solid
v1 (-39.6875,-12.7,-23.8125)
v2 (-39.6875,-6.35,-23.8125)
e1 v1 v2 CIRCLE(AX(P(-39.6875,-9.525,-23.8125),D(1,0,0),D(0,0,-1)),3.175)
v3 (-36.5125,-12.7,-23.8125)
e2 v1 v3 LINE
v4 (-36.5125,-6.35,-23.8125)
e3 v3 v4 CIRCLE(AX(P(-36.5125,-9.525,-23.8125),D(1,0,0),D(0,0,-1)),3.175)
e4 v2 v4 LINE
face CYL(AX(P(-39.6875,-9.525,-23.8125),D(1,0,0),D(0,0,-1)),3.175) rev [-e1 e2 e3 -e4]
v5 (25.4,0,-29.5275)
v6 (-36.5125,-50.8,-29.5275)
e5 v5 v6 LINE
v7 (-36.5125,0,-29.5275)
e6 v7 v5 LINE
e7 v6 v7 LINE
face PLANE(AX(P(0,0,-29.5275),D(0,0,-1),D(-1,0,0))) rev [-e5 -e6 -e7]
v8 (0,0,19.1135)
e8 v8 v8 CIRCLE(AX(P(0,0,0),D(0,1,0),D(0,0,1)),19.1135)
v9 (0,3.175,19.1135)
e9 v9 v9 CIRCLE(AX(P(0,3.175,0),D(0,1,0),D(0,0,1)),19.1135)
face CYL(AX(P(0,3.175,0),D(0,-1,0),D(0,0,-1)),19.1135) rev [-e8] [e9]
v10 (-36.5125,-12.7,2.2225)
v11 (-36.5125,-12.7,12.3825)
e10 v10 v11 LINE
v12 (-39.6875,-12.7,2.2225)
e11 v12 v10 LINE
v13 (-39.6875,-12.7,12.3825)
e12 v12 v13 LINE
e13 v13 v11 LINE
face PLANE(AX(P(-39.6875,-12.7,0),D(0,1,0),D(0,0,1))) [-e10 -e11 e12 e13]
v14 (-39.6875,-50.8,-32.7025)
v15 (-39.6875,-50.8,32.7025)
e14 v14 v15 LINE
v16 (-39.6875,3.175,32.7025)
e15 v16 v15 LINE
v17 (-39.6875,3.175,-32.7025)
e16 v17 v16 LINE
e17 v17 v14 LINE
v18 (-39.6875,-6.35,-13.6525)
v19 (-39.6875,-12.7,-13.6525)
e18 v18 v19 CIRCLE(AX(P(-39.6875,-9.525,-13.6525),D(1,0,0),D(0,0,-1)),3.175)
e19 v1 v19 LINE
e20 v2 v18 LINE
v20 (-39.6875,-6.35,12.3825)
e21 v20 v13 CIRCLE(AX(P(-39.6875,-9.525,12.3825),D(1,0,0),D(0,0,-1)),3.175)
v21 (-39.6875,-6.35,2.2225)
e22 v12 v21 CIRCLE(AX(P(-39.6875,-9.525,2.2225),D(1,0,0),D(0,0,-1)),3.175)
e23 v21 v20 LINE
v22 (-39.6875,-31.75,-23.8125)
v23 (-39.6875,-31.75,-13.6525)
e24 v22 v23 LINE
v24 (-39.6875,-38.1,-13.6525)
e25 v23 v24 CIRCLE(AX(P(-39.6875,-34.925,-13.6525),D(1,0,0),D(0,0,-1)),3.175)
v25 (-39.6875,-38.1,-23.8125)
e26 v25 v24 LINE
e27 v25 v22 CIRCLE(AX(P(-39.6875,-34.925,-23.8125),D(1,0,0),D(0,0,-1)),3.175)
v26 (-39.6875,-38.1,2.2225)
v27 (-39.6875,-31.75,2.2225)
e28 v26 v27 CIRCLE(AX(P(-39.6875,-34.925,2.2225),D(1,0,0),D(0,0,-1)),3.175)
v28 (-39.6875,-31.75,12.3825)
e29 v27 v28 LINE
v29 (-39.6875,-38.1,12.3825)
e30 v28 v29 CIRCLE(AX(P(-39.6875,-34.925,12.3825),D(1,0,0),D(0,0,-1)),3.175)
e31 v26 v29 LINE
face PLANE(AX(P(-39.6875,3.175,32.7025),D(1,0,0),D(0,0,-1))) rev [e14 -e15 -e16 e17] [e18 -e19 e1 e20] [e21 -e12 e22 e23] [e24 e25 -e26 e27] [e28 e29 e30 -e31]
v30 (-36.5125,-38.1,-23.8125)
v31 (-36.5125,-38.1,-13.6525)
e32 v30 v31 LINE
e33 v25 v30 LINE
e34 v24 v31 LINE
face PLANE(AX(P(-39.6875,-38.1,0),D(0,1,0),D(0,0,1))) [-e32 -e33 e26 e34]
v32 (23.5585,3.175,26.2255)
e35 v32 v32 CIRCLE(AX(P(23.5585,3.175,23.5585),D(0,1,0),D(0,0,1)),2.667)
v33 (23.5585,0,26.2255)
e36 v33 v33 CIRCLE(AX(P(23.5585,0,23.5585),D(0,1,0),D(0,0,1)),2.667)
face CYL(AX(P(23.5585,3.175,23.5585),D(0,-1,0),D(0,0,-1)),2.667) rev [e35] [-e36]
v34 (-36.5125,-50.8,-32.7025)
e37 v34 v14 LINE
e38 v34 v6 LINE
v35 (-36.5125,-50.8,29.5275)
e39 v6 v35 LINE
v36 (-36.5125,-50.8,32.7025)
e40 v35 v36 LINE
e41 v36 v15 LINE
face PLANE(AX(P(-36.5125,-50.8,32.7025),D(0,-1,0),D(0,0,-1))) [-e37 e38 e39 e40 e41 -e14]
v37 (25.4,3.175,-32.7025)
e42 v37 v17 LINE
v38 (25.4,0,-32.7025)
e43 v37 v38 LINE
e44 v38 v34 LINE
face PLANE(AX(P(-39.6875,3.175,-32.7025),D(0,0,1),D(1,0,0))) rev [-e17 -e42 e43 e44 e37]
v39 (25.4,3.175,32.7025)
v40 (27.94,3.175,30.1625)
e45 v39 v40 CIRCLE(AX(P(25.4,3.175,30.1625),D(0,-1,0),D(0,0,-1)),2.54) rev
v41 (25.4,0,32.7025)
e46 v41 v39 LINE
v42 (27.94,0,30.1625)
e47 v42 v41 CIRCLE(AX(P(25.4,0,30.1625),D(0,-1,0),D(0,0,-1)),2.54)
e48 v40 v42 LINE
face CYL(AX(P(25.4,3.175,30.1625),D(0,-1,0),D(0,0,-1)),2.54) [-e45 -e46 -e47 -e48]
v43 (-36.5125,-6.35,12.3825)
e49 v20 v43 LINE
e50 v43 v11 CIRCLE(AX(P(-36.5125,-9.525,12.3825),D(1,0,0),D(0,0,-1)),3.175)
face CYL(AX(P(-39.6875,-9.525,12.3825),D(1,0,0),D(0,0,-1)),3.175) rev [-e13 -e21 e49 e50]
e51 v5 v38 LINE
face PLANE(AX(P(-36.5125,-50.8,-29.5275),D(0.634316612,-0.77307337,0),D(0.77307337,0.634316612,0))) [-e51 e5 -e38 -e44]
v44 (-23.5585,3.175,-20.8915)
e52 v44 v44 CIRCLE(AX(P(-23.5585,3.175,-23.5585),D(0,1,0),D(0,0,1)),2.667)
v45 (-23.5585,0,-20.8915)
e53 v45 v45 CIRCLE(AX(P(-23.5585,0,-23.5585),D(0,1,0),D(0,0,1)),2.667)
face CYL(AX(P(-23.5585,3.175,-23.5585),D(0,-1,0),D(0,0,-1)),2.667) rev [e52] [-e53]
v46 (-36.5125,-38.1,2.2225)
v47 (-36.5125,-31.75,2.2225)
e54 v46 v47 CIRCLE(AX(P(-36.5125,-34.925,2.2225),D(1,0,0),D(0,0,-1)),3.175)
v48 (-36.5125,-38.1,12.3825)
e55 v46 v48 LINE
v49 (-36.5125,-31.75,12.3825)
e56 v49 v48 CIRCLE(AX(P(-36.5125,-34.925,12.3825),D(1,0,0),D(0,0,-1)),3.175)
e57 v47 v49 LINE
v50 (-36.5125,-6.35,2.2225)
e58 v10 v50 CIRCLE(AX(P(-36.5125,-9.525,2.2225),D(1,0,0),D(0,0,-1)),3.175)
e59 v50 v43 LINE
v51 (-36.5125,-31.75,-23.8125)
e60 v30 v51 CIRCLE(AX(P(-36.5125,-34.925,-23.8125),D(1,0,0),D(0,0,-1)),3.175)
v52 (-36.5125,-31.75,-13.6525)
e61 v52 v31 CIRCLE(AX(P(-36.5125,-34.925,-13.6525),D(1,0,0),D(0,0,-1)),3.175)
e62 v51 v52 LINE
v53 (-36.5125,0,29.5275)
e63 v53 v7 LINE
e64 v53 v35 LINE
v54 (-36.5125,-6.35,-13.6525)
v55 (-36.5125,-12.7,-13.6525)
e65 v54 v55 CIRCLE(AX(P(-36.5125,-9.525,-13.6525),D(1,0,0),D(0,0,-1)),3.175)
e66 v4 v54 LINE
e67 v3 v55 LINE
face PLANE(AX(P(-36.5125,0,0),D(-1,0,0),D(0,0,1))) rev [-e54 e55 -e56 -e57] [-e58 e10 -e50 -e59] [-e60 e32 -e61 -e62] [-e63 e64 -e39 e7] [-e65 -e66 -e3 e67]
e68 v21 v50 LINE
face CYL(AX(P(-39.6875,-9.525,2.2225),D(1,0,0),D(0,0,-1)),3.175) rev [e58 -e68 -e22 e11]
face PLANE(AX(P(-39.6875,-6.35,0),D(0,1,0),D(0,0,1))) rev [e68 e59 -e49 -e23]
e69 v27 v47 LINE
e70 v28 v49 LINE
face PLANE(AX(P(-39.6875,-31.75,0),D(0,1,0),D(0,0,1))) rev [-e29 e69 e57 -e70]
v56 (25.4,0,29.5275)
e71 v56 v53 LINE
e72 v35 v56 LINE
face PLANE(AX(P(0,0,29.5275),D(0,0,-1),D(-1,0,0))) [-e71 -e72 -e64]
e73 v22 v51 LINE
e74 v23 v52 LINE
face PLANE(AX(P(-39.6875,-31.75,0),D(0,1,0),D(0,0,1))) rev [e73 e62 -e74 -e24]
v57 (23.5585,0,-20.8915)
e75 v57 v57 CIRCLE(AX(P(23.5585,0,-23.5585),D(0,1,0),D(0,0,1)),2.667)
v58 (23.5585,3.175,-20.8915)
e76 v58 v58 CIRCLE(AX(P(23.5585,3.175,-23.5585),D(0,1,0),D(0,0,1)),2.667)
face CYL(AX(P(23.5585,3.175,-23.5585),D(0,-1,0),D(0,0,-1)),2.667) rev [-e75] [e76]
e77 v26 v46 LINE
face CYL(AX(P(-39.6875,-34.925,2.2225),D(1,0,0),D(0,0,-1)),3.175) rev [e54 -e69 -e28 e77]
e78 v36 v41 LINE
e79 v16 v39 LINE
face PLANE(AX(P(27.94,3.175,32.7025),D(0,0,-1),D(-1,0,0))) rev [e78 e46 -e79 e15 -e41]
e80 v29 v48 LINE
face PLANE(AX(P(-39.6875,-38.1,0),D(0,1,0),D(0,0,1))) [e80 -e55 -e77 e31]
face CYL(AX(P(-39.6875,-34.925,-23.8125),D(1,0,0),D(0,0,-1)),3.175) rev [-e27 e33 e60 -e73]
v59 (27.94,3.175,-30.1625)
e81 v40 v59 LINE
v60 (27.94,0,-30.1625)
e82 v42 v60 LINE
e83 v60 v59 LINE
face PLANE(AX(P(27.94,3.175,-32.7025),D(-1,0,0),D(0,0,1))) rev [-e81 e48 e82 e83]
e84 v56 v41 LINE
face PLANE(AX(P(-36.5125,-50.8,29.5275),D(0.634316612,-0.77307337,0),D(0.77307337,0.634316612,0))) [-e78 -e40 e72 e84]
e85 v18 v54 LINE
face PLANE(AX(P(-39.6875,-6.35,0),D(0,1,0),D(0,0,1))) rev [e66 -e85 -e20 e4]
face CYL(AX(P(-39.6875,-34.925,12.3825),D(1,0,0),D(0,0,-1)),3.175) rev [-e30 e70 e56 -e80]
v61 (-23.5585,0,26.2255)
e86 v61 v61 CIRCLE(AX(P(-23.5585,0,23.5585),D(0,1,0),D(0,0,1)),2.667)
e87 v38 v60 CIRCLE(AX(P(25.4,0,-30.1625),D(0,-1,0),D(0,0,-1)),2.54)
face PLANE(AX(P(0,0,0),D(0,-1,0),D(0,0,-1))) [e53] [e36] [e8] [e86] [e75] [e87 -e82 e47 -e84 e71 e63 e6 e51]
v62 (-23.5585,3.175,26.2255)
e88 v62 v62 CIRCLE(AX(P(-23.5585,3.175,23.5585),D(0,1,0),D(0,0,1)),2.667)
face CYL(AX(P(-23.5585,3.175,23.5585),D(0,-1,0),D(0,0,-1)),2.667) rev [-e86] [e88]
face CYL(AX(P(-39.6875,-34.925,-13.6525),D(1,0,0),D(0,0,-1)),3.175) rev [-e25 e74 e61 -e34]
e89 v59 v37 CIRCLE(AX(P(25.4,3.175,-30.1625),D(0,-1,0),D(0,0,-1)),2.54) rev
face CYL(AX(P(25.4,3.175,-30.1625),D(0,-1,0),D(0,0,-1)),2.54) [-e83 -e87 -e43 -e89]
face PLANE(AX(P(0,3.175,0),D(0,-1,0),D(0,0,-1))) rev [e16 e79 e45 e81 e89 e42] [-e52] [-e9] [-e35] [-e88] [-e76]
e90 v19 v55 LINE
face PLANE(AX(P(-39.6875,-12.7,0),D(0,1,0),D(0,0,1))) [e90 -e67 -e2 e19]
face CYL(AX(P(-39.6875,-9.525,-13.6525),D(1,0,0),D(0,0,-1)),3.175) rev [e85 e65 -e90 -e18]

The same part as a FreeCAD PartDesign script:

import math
import FreeCAD as App
import Part
import Sketcher

V = App.Vector
Q = App.Units.Quantity


def edges_at(feature, points):
    """Names of the edges that pass closest to the given points."""
    edges = feature.Shape.Edges
    near = lambda p: min(range(len(edges)), key=lambda i: edges[i].distToShape(Part.Vertex(*p))[0])
    return sorted({f"Edge{near(p) + 1}" for p in points})

doc = App.newDocument("Part")
body = doc.addObject("PartDesign::Body", "Body")

# Sketch on XZ plane
sketch1 = doc.addObject("Sketcher::SketchObject", "Sketch")
body.addObject(sketch1)
sketch1.AttachmentSupport = (doc.XZ_Plane, [""])
sketch1.MapMode = "FlatFace"
sketch1.addGeometry(Part.LineSegment(V(-39.7, -32.7, 0), V(-39.7, 32.7, 0)), False)
sketch1.addGeometry(Part.LineSegment(V(-39.7, 32.7, 0), V(27.9, 32.7, 0)), False)
sketch1.addGeometry(Part.LineSegment(V(27.9, 32.7, 0), V(27.9, -32.7, 0)), False)
sketch1.addGeometry(Part.LineSegment(V(27.9, -32.7, 0), V(-39.7, -32.7, 0)), False)
sketch1.addGeometry(Part.Circle(V(-23.6, 23.6, 0), V(0, 0, 1), 2.7), False)
sketch1.addGeometry(Part.Circle(V(0, 0, 0), V(0, 0, 1), 19.1), False)
sketch1.addGeometry(Part.Circle(V(23.6, 23.6, 0), V(0, 0, 1), 2.7), False)
sketch1.addGeometry(Part.Circle(V(-23.6, -23.6, 0), V(0, 0, 1), 2.7), False)
sketch1.addGeometry(Part.Circle(V(23.6, -23.6, 0), V(0, 0, 1), 2.7), False)
sketch1.addConstraint(Sketcher.Constraint("Coincident", 0, 2, 1, 1))
sketch1.addConstraint(Sketcher.Constraint("Coincident", 1, 2, 2, 1))
sketch1.addConstraint(Sketcher.Constraint("Coincident", 2, 2, 3, 1))
sketch1.addConstraint(Sketcher.Constraint("Coincident", 3, 2, 0, 1))
sketch1.addConstraint(Sketcher.Constraint("Vertical", 0))
sketch1.addConstraint(Sketcher.Constraint("Horizontal", 1))
sketch1.addConstraint(Sketcher.Constraint("Vertical", 2))
sketch1.addConstraint(Sketcher.Constraint("Horizontal", 3))
sketch1.addConstraint(Sketcher.Constraint("Coincident", 5, 3, -1, 1))
sketch1.addConstraint(Sketcher.Constraint("Equal", 4, 6))
sketch1.addConstraint(Sketcher.Constraint("Equal", 6, 7))
sketch1.addConstraint(Sketcher.Constraint("Equal", 7, 8))
sketch1.addConstraint(Sketcher.Constraint("Symmetric", 6, 3, 7, 3, -1, 1))
sketch1.addConstraint(Sketcher.Constraint("Symmetric", 4, 3, 8, 3, -1, 1))
sketch1.addConstraint(Sketcher.Constraint("Symmetric", 4, 3, 6, 3, -2))
sketch1.addConstraint(Sketcher.Constraint("Diameter", 4, Q("0.21 in")))
sketch1.addConstraint(Sketcher.Constraint("Diameter", 5, Q("1.505 in")))
sketch1.addConstraint(Sketcher.Constraint("DistanceX", -1, 1, 1, 2, Q("1.1 in")))
sketch1.addConstraint(Sketcher.Constraint("DistanceY", 0, 1, 0, 2, Q("2.575 in")))
sketch1.addConstraint(Sketcher.Constraint("DistanceY", 4, 3, 0, 2, Q("0.36 in")))
sketch1.addConstraint(Sketcher.Constraint("DistanceX", 0, 2, 6, 3, Q("2.49 in")))
sketch1.addConstraint(Sketcher.Constraint("DistanceY", 2, 2, 8, 3, Q("0.36 in")))
sketch1.addConstraint(Sketcher.Constraint("DistanceX", 1, 1, 1, 2, Q("2.6625 in")))
pad1 = doc.addObject("PartDesign::Pad", "Pad")
body.addObject(pad1)
pad1.Profile = sketch1
pad1.Length = Q("0.125 in")
pad1.Reversed = True
doc.recompute()

fillet = doc.addObject("PartDesign::Fillet", "Fillet")
body.addObject(fillet)
fillet.Base = (pad1, edges_at(pad1, [(27.94, 1.587, -32.703), (27.94, 1.587, 32.703)]))
fillet.Radius = Q("0.1 in")

# Sketch on YZ plane
sketch2 = doc.addObject("Sketcher::SketchObject", "Sketch001")
body.addObject(sketch2)
sketch2.AttachmentSupport = (doc.YZ_Plane, [""])
sketch2.MapMode = "FlatFace"
sketch2.AttachmentOffset = App.Placement(V(0, 0, -1.5625 * 25.4), App.Rotation())
sketch2.addGeometry(Part.LineSegment(V(0, -33, 0), V(-51, -33, 0)), False)
sketch2.addGeometry(Part.LineSegment(V(-51, -33, 0), V(-51, 33, 0)), False)
sketch2.addGeometry(Part.LineSegment(V(-51, 33, 0), V(0, 33, 0)), False)
sketch2.addGeometry(Part.LineSegment(V(0, 33, 0), V(0, -33, 0)), False)
sketch2.addConstraint(Sketcher.Constraint("Coincident", 0, 2, 1, 1))
sketch2.addConstraint(Sketcher.Constraint("Coincident", 1, 2, 2, 1))
sketch2.addConstraint(Sketcher.Constraint("Coincident", 2, 2, 3, 1))
sketch2.addConstraint(Sketcher.Constraint("Coincident", 3, 2, 0, 1))
sketch2.addConstraint(Sketcher.Constraint("Horizontal", 0))
sketch2.addConstraint(Sketcher.Constraint("Vertical", 1))
sketch2.addConstraint(Sketcher.Constraint("Horizontal", 2))
sketch2.addConstraint(Sketcher.Constraint("Vertical", 3))
sketch2.addConstraint(Sketcher.Constraint("Symmetric", 2, 2, 3, 2, -1, 1))
sketch2.addConstraint(Sketcher.Constraint("DistanceX", 0, 2, 0, 1, Q("2 in")))
sketch2.addConstraint(Sketcher.Constraint("DistanceY", 1, 1, 1, 2, Q("2.575 in")))
pad2 = doc.addObject("PartDesign::Pad", "Pad001")
body.addObject(pad2)
pad2.Profile = sketch2
pad2.Length = Q("0.125 in")

# Sketch on XY plane
sketch3 = doc.addObject("Sketcher::SketchObject", "Sketch002")
body.addObject(sketch3)
sketch3.AttachmentSupport = (doc.XY_Plane, [""])
sketch3.MapMode = "FlatFace"
sketch3.AttachmentOffset = App.Placement(V(0, 0, 1.2875 * 25.4), App.Rotation())
sketch3.addGeometry(Part.LineSegment(V(-37, -51, 0), V(25, 0, 0)), False)
sketch3.addGeometry(Part.LineSegment(V(25, 0, 0), V(-37, 0, 0)), False)
sketch3.addGeometry(Part.LineSegment(V(-37, 0, 0), V(-37, -51, 0)), False)
sketch3.addConstraint(Sketcher.Constraint("Coincident", 0, 2, 1, 1))
sketch3.addConstraint(Sketcher.Constraint("Coincident", 1, 2, 2, 1))
sketch3.addConstraint(Sketcher.Constraint("Coincident", 2, 2, 0, 1))
sketch3.addConstraint(Sketcher.Constraint("Horizontal", 1))
sketch3.addConstraint(Sketcher.Constraint("Vertical", 2))
sketch3.addConstraint(Sketcher.Constraint("PointOnObject", 0, 2, -1))
sketch3.addConstraint(Sketcher.Constraint("DistanceY", 2, 2, 2, 1, Q("2 in")))
sketch3.addConstraint(Sketcher.Constraint("DistanceX", -1, 1, 0, 2, Q("1 in")))
sketch3.addConstraint(Sketcher.Constraint("DistanceX", 1, 2, 1, 1, Q("2.4375 in")))
pad3 = doc.addObject("PartDesign::Pad", "Pad002")
body.addObject(pad3)
pad3.Profile = sketch3
pad3.Length = Q("0.125 in")
pad3.Reversed = True

# Sketch on XY plane
sketch4 = doc.addObject("Sketcher::SketchObject", "Sketch003")
body.addObject(sketch4)
sketch4.AttachmentSupport = (doc.XY_Plane, [""])
sketch4.MapMode = "FlatFace"
sketch4.AttachmentOffset = App.Placement(V(0, 0, -1.2875 * 25.4), App.Rotation())
sketch4.addGeometry(Part.LineSegment(V(-37, 0, 0), V(25, 0, 0)), False)
sketch4.addGeometry(Part.LineSegment(V(25, 0, 0), V(-37, -51, 0)), False)
sketch4.addGeometry(Part.LineSegment(V(-37, -51, 0), V(-37, 0, 0)), False)
sketch4.addConstraint(Sketcher.Constraint("Coincident", 0, 2, 1, 1))
sketch4.addConstraint(Sketcher.Constraint("Coincident", 1, 2, 2, 1))
sketch4.addConstraint(Sketcher.Constraint("Coincident", 2, 2, 0, 1))
sketch4.addConstraint(Sketcher.Constraint("Horizontal", 0))
sketch4.addConstraint(Sketcher.Constraint("Vertical", 2))
sketch4.addConstraint(Sketcher.Constraint("PointOnObject", 0, 2, -1))
sketch4.addConstraint(Sketcher.Constraint("DistanceY", 2, 1, 2, 2, Q("2 in")))
sketch4.addConstraint(Sketcher.Constraint("DistanceX", -1, 1, 0, 2, Q("1 in")))
sketch4.addConstraint(Sketcher.Constraint("DistanceX", 0, 1, 0, 2, Q("2.4375 in")))
pad4 = doc.addObject("PartDesign::Pad", "Pad003")
body.addObject(pad4)
pad4.Profile = sketch4
pad4.Length = Q("0.125 in")

# Sketch on YZ plane
sketch5 = doc.addObject("Sketcher::SketchObject", "Sketch004")
body.addObject(sketch5)
sketch5.AttachmentSupport = (doc.YZ_Plane, [""])
sketch5.MapMode = "FlatFace"
sketch5.AttachmentOffset = App.Placement(V(0, 0, -1.4375 * 25.4), App.Rotation())
sketch5.addGeometry(Part.LineSegment(V(-6.3, 2.2, 0), V(-6.3, 12.4, 0)), False)
sketch5.addGeometry(Part.ArcOfCircle(Part.Circle(V(-9.5, 12.4, 0), V(0, 0, 1), 3.2), math.radians(0), math.radians(180)), False)
sketch5.addGeometry(Part.LineSegment(V(-12.7, 12.4, 0), V(-12.7, 2.2, 0)), False)
sketch5.addGeometry(Part.ArcOfCircle(Part.Circle(V(-9.5, 2.2, 0), V(0, 0, 1), 3.2), math.radians(180), math.radians(360)), False)
sketch5.addGeometry(Part.LineSegment(V(-6.3, -23.8, 0), V(-6.3, -13.7, 0)), False)
sketch5.addGeometry(Part.ArcOfCircle(Part.Circle(V(-9.5, -13.7, 0), V(0, 0, 1), 3.2), math.radians(0), math.radians(180)), False)
sketch5.addGeometry(Part.LineSegment(V(-12.7, -13.7, 0), V(-12.7, -23.8, 0)), False)
sketch5.addGeometry(Part.ArcOfCircle(Part.Circle(V(-9.5, -23.8, 0), V(0, 0, 1), 3.2), math.radians(180), math.radians(360)), False)
sketch5.addGeometry(Part.LineSegment(V(-31.8, -23.8, 0), V(-31.8, -13.7, 0)), False)
sketch5.addGeometry(Part.ArcOfCircle(Part.Circle(V(-34.9, -13.7, 0), V(0, 0, 1), 3.2), math.radians(0), math.radians(180)), False)
sketch5.addGeometry(Part.LineSegment(V(-38.1, -13.7, 0), V(-38.1, -23.8, 0)), False)
sketch5.addGeometry(Part.ArcOfCircle(Part.Circle(V(-34.9, -23.8, 0), V(0, 0, 1), 3.2), math.radians(180), math.radians(360)), False)
sketch5.addGeometry(Part.LineSegment(V(-31.8, 2.2, 0), V(-31.8, 12.4, 0)), False)
sketch5.addGeometry(Part.ArcOfCircle(Part.Circle(V(-34.9, 12.4, 0), V(0, 0, 1), 3.2), math.radians(0), math.radians(180)), False)
sketch5.addGeometry(Part.LineSegment(V(-38.1, 12.4, 0), V(-38.1, 2.2, 0)), False)
sketch5.addGeometry(Part.ArcOfCircle(Part.Circle(V(-34.9, 2.2, 0), V(0, 0, 1), 3.2), math.radians(180), math.radians(360)), False)
sketch5.addConstraint(Sketcher.Constraint("Tangent", 0, 2, 1, 1))
sketch5.addConstraint(Sketcher.Constraint("Tangent", 1, 2, 2, 1))
sketch5.addConstraint(Sketcher.Constraint("Tangent", 2, 2, 3, 1))
sketch5.addConstraint(Sketcher.Constraint("Tangent", 3, 2, 0, 1))
sketch5.addConstraint(Sketcher.Constraint("Tangent", 4, 2, 5, 1))
sketch5.addConstraint(Sketcher.Constraint("Tangent", 5, 2, 6, 1))
sketch5.addConstraint(Sketcher.Constraint("Tangent", 6, 2, 7, 1))
sketch5.addConstraint(Sketcher.Constraint("Tangent", 7, 2, 4, 1))
sketch5.addConstraint(Sketcher.Constraint("Tangent", 8, 2, 9, 1))
sketch5.addConstraint(Sketcher.Constraint("Tangent", 9, 2, 10, 1))
sketch5.addConstraint(Sketcher.Constraint("Tangent", 10, 2, 11, 1))
sketch5.addConstraint(Sketcher.Constraint("Tangent", 11, 2, 8, 1))
sketch5.addConstraint(Sketcher.Constraint("Tangent", 12, 2, 13, 1))
sketch5.addConstraint(Sketcher.Constraint("Tangent", 13, 2, 14, 1))
sketch5.addConstraint(Sketcher.Constraint("Tangent", 14, 2, 15, 1))
sketch5.addConstraint(Sketcher.Constraint("Tangent", 15, 2, 12, 1))
sketch5.addConstraint(Sketcher.Constraint("Vertical", 0))
sketch5.addConstraint(Sketcher.Constraint("Vertical", 2))
sketch5.addConstraint(Sketcher.Constraint("Vertical", 4))
sketch5.addConstraint(Sketcher.Constraint("Vertical", 6))
sketch5.addConstraint(Sketcher.Constraint("Vertical", 8))
sketch5.addConstraint(Sketcher.Constraint("Vertical", 10))
sketch5.addConstraint(Sketcher.Constraint("Vertical", 12))
sketch5.addConstraint(Sketcher.Constraint("Vertical", 14))
sketch5.addConstraint(Sketcher.Constraint("Equal", 3, 5))
sketch5.addConstraint(Sketcher.Constraint("Equal", 7, 9))
sketch5.addConstraint(Sketcher.Constraint("Equal", 11, 13))
sketch5.addConstraint(Sketcher.Constraint("Horizontal", 5, 3, 9, 3))
sketch5.addConstraint(Sketcher.Constraint("Horizontal", 7, 3, 11, 3))
sketch5.addConstraint(Sketcher.Constraint("Horizontal", 1, 3, 13, 3))
sketch5.addConstraint(Sketcher.Constraint("Horizontal", 3, 3, 15, 3))
sketch5.addConstraint(Sketcher.Constraint("Vertical", 3, 3, 5, 3))
sketch5.addConstraint(Sketcher.Constraint("Vertical", 11, 3, 13, 3))
sketch5.addConstraint(Sketcher.Constraint("Equal", 2, 4))
sketch5.addConstraint(Sketcher.Constraint("DistanceY", 0, 1, 0, 2, Q("0.4 in")))
sketch5.addConstraint(Sketcher.Constraint("Radius", 1, Q("0.125 in")))
sketch5.addConstraint(Sketcher.Constraint("DistanceX", 9, 3, 5, 3, Q("1 in")))
sketch5.addConstraint(Sketcher.Constraint("DistanceX", 1, 2, -1, 1, Q("0.5 in")))
sketch5.addConstraint(Sketcher.Constraint("DistanceY", 7, 3, -1, 1, Q("0.9375 in")))
sketch5.addConstraint(Sketcher.Constraint("DistanceY", 5, 3, 3, 3, Q("0.625 in")))
pocket1 = doc.addObject("PartDesign::Pocket", "Pocket")
body.addObject(pocket1)
pocket1.Profile = sketch5
pocket1.Length = Q("0.125 in")

doc.recompute()
